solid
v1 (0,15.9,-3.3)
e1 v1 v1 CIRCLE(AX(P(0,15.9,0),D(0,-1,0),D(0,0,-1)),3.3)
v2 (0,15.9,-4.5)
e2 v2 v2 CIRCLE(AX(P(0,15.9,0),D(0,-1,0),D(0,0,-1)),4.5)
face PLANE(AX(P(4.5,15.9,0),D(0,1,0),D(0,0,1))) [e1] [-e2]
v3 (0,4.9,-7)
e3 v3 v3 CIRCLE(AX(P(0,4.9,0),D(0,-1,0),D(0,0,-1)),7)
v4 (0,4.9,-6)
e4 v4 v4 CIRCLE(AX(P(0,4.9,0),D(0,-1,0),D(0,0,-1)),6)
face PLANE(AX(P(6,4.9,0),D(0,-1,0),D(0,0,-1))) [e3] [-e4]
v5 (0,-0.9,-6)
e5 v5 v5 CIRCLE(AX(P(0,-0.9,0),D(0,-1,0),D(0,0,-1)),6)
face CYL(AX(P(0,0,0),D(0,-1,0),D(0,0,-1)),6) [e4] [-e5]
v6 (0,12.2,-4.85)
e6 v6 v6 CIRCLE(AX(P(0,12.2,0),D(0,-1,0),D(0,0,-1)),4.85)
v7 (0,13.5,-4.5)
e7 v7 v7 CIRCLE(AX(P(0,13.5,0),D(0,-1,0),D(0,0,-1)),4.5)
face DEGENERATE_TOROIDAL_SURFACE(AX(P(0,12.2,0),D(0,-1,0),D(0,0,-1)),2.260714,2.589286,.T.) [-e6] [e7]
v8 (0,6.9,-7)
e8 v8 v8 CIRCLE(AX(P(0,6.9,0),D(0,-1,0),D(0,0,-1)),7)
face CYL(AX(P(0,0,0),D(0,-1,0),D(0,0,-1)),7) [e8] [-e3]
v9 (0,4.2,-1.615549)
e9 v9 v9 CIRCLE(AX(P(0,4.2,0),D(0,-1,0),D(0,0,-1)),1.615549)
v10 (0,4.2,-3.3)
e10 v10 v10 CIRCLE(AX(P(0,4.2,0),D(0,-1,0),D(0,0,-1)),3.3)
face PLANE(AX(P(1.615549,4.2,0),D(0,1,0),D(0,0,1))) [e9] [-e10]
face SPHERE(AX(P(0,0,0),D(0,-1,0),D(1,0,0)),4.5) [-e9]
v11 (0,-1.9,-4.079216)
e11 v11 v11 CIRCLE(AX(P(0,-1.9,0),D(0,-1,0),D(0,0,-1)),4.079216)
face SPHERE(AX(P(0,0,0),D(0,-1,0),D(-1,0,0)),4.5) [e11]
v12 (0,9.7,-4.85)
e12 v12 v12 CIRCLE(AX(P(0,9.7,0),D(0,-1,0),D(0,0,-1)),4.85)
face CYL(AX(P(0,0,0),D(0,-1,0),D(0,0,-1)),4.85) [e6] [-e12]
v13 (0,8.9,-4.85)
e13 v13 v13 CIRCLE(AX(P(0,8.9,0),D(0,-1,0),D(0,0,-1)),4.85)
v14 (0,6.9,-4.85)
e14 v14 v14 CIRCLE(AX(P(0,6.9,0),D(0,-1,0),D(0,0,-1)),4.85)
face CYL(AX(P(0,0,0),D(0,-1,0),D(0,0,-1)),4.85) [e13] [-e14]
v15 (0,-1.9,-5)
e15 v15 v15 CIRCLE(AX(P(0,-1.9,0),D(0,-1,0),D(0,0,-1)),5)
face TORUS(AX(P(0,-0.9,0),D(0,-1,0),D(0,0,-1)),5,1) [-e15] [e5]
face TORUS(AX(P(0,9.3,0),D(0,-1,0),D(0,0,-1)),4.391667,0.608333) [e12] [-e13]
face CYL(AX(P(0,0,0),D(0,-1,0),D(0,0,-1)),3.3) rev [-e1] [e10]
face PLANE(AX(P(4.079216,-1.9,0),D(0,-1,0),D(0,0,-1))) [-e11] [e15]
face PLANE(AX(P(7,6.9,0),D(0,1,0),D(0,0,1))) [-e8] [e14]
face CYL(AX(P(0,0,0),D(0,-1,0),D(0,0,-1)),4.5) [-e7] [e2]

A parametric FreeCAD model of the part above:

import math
import FreeCAD as App
import Part
import Sketcher
from FreeCAD import Vector
Q = App.Units.Quantity

doc = App.newDocument("Part")
body = doc.addObject("PartDesign::Body", "Body")

# Sketch on XY plane
sketch1 = body.newObject("Sketcher::SketchObject", "Sketch")
sketch1.AttachmentSupport = (doc.getObject("XY_Plane"), [""])
sketch1.MapMode = "FlatFace"
sketch1.addGeometry([
    Part.LineSegment(Vector(4.1, -1.9, 0), Vector(5, -1.9, 0)),  # 0
    Part.ArcOfCircle(Part.Circle(Vector(5, -0.9, 0), Vector(0, 0, 1), 1), math.radians(-90), math.radians(0)),  # 1
    Part.LineSegment(Vector(6, -0.9, 0), Vector(6, 4.9, 0)),  # 2
    Part.LineSegment(Vector(6, 4.9, 0), Vector(7, 4.9, 0)),  # 3
    Part.LineSegment(Vector(7, 4.9, 0), Vector(7, 6.9, 0)),  # 4
    Part.LineSegment(Vector(7, 6.9, 0), Vector(4.8, 6.9, 0)),  # 5
    Part.LineSegment(Vector(4.8, 6.9, 0), Vector(4.8, 8.9, 0)),  # 6
    Part.ArcOfCircle(Part.Circle(Vector(4.4, 9.3, 0), Vector(0, 0, 1), 0.6), math.radians(-41), math.radians(41)),  # 7
    Part.LineSegment(Vector(4.8, 9.7, 0), Vector(4.8, 12.2, 0)),  # 8
    Part.ArcOfCircle(Part.Circle(Vector(2.3, 12.2, 0), Vector(0, 0, 1), 2.6), math.radians(0), math.radians(30)),  # 9
    Part.LineSegment(Vector(4.5, 13.5, 0), Vector(4.5, 15.9, 0)),  # 10
    Part.LineSegment(Vector(4.5, 15.9, 0), Vector(3.3, 15.9, 0)),  # 11
    Part.LineSegment(Vector(3.3, 15.9, 0), Vector(3.3, 4.2, 0)),  # 12
    Part.LineSegment(Vector(3.3, 4.2, 0), Vector(1.6, 4.2, 0)),  # 13
    Part.ArcOfCircle(Part.Circle(Vector(0, 0, 0), Vector(0, 0, 1), 4.5), math.radians(69), math.radians(90)),  # 14
    Part.LineSegment(Vector(0, 4.5, 0), Vector(0, -4.5, 0)),  # 15
    Part.ArcOfCircle(Part.Circle(Vector(0, 0, 0), Vector(0, 0, 1), 4.5), math.radians(-90), math.radians(-25)),  # 16
], False)
sketch1.addConstraint([
    Sketcher.Constraint("Tangent", 0, 2, 1, 1),
    Sketcher.Constraint("Tangent", 1, 2, 2, 1),
    Sketcher.Constraint("Coincident", 2, 2, 3, 1),
    Sketcher.Constraint("Coincident", 3, 2, 4, 1),
    Sketcher.Constraint("Coincident", 4, 2, 5, 1),
    Sketcher.Constraint("Coincident", 5, 2, 6, 1),
    Sketcher.Constraint("Coincident", 6, 2, 7, 1),
    Sketcher.Constraint("Coincident", 7, 2, 8, 1),
    Sketcher.Constraint("Tangent", 8, 2, 9, 1),
    Sketcher.Constraint("Coincident", 9, 2, 10, 1),
    Sketcher.Constraint("Coincident", 10, 2, 11, 1),
    Sketcher.Constraint("Coincident", 11, 2, 12, 1),
    Sketcher.Constraint("Coincident", 12, 2, 13, 1),
    Sketcher.Constraint("Coincident", 13, 2, 14, 1),
    Sketcher.Constraint("Coincident", 14, 2, 15, 1),
    Sketcher.Constraint("Coincident", 15, 2, 16, 1),
    Sketcher.Constraint("Coincident", 16, 2, 0, 1),
    Sketcher.Constraint("Horizontal", 0),
    Sketcher.Constraint("Vertical", 2),
    Sketcher.Constraint("Horizontal", 3),
    Sketcher.Constraint("Vertical", 4),
    Sketcher.Constraint("Horizontal", 5),
    Sketcher.Constraint("Vertical", 6),
    Sketcher.Constraint("Vertical", 8),
    Sketcher.Constraint("Vertical", 10),
    Sketcher.Constraint("Horizontal", 11),
    Sketcher.Constraint("Vertical", 12),
    Sketcher.Constraint("Horizontal", 13),
    Sketcher.Constraint("Vertical", 15),
    Sketcher.Constraint("Coincident", 14, 3, -1, 1),
    Sketcher.Constraint("Coincident", 16, 3, -1, 1),
    Sketcher.Constraint("Equal", 14, 16),
    Sketcher.Constraint("PointOnObject", 14, 2, -2),
    Sketcher.Constraint("Vertical", 6, 2, 7, 2),
    Sketcher.Constraint("Equal", 4, 6),
    Sketcher.Constraint("Radius", 1, Q("1 mm")),
    Sketcher.Constraint("Radius", 14, Q("4.5 mm")),
    Sketcher.Constraint("DistanceX", 3, 1, 3, 2, Q("1 mm")),
    Sketcher.Constraint("DistanceY", 4, 1, 4, 2, Q("2 mm")),
    Sketcher.Constraint("DistanceX", 11, 2, 11, 1, Q("1.2 mm")),
    Sketcher.Constraint("DistanceY", 2, 1, 2, 2, Q("5.8 mm")),
    Sketcher.Constraint("DistanceY", 8, 1, 8, 2, Q("2.5 mm")),
    Sketcher.Constraint("DistanceY", 10, 1, 10, 2, Q("2.4 mm")),
    Sketcher.Constraint("DistanceY", 12, 2, 12, 1, Q("11.7 mm")),
    Sketcher.Constraint("DistanceX", -1, 1, 1, 3, Q("5 mm")),
    Sketcher.Constraint("DistanceX", 5, 2, 5, 1, Q("2.15 mm")),
    Sketcher.Constraint("DistanceY", 1, 3, -1, 1, Q("0.9 mm")),
    Sketcher.Constraint("DistanceY", -1, 1, 7, 3, Q("9.3 mm")),
    Sketcher.Constraint("DistanceX", -1, 1, 9, 2, Q("4.5 mm")),
    Sketcher.Constraint("DistanceY", -1, 1, 9, 2, Q("13.5 mm")),
    Sketcher.Constraint("Radius", 7, Q("0.608333 mm")),
])
revolution = body.newObject("PartDesign::Revolution", "Revolution")
revolution.Profile = sketch1
revolution.ReferenceAxis = (sketch1, ["V_Axis"])
revolution.Angle = 360

doc.recompute()
